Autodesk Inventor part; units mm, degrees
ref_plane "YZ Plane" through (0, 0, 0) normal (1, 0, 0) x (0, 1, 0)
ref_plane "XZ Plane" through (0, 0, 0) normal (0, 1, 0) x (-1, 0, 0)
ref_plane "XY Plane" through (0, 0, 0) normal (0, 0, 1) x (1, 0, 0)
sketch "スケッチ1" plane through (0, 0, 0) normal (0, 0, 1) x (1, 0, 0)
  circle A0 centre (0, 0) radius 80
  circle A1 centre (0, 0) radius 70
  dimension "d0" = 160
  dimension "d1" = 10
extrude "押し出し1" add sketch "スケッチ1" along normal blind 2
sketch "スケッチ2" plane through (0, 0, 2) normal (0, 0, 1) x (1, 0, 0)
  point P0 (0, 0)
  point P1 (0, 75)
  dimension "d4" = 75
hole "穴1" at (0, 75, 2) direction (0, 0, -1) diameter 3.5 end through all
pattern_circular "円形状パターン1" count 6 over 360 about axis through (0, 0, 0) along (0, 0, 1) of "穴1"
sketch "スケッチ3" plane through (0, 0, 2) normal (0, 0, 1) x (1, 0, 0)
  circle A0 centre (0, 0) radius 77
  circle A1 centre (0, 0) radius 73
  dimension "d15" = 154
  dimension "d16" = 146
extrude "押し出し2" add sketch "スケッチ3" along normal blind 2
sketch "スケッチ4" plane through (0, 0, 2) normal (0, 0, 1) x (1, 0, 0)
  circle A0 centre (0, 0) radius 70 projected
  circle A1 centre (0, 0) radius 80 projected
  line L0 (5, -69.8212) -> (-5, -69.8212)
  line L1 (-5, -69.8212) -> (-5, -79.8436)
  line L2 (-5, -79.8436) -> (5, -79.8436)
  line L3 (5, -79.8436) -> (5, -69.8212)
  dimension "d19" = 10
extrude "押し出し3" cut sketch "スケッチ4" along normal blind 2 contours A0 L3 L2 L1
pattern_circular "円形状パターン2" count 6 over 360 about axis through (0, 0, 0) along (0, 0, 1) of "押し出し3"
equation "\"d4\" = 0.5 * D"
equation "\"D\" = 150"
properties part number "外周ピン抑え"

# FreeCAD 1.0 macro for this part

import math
import FreeCAD as App
import Part
import Sketcher
from FreeCAD import Vector
Q = App.Units.Quantity

doc = App.newDocument("Part")
body = doc.addObject("PartDesign::Body", "Body")

# Sketch on XY plane
sketch1 = body.newObject("Sketcher::SketchObject", "Sketch")
sketch1.AttachmentSupport = (doc.getObject("XY_Plane"), [""])
sketch1.MapMode = "FlatFace"
sketch1.addGeometry(Part.Circle(Vector(0, 0, 0), Vector(0, 0, 1), 80), False)
sketch1.addGeometry(Part.Circle(Vector(0, 0, 0), Vector(0, 0, 1), 70), False)
sketch1.addConstraint(Sketcher.Constraint("Coincident", 0, 3, -1, 1))
sketch1.addConstraint(Sketcher.Constraint("Coincident", 1, 3, -1, 1))
sketch1.addConstraint(Sketcher.Constraint("Diameter", 0, Q("160 mm")))
sketch1.addConstraint(Sketcher.Constraint("Diameter", 1, Q("140 mm")))
pad1 = body.newObject("PartDesign::Pad", "Pad")
pad1.Profile = sketch1
pad1.Length = 2

# Sketch on XY plane
sketch2 = body.newObject("Sketcher::SketchObject", "Sketch001")
sketch2.AttachmentSupport = (doc.getObject("XY_Plane"), [""])
sketch2.MapMode = "FlatFace"
sketch2.AttachmentOffset = App.Placement(Vector(0, 0, 2), App.Rotation())
sketch2.addGeometry(Part.Circle(Vector(0, 75, 0), Vector(0, 0, 1), 1.8), False)
sketch2.addConstraint(Sketcher.Constraint("PointOnObject", 0, 3, -2))
sketch2.addConstraint(Sketcher.Constraint("Diameter", 0, Q("3.5 mm")))
sketch2.addConstraint(Sketcher.Constraint("DistanceY", -1, 1, 0, 3, Q("75 mm")))
doc.recompute()
hole = body.newObject("PartDesign::Hole", "Hole")
hole.Profile = sketch2
hole.ThreadType = "None"
hole.Diameter = 3.5
hole.DepthType = "ThroughAll"
doc.recompute()

polarpattern = body.newObject("PartDesign::PolarPattern", "PolarPattern")
polarpattern.Originals = [hole]
polarpattern.Axis = (doc.getObject("Z_Axis"), [""])
polarpattern.Angle = 360
polarpattern.Occurrences = 6
body.Tip = polarpattern

# Sketch on XY plane
sketch3 = body.newObject("Sketcher::SketchObject", "Sketch002")
sketch3.AttachmentSupport = (doc.getObject("XY_Plane"), [""])
sketch3.MapMode = "FlatFace"
sketch3.AttachmentOffset = App.Placement(Vector(0, 0, 2), App.Rotation())
sketch3.addGeometry(Part.Circle(Vector(0, 0, 0), Vector(0, 0, 1), 77), False)
sketch3.addGeometry(Part.Circle(Vector(0, 0, 0), Vector(0, 0, 1), 73), False)
sketch3.addConstraint(Sketcher.Constraint("Coincident", 0, 3, -1, 1))
sketch3.addConstraint(Sketcher.Constraint("Coincident", 1, 3, -1, 1))
sketch3.addConstraint(Sketcher.Constraint("Diameter", 0, Q("154 mm")))
sketch3.addConstraint(Sketcher.Constraint("Diameter", 1, Q("146 mm")))
pad2 = body.newObject("PartDesign::Pad", "Pad001")
pad2.Profile = sketch3
pad2.Length = 2

# Sketch on XY plane
sketch4 = body.newObject("Sketcher::SketchObject", "Sketch003")
sketch4.AttachmentSupport = (doc.getObject("XY_Plane"), [""])
sketch4.MapMode = "FlatFace"
sketch4.AttachmentOffset = App.Placement(Vector(0, 0, 2), App.Rotation())
sketch4.addGeometry(Part.ArcOfCircle(Part.Circle(Vector(0, 0, 0), Vector(0, 0, 1), 70), math.radians(-94.1), math.radians(-85.9)), False)
sketch4.addGeometry(Part.LineSegment(Vector(-5, -70, 0), Vector(-5, -80, 0)), False)
sketch4.addGeometry(Part.LineSegment(Vector(-5, -80, 0), Vector(5, -80, 0)), False)
sketch4.addGeometry(Part.LineSegment(Vector(5, -80, 0), Vector(5, -70, 0)), False)
sketch4.addConstraint(Sketcher.Constraint("Coincident", 0, 1, 1, 1))
sketch4.addConstraint(Sketcher.Constraint("Coincident", 1, 2, 2, 1))
sketch4.addConstraint(Sketcher.Constraint("Coincident", 2, 2, 3, 1))
sketch4.addConstraint(Sketcher.Constraint("Coincident", 3, 2, 0, 2))
sketch4.addConstraint(Sketcher.Constraint("Vertical", 1))
sketch4.addConstraint(Sketcher.Constraint("Horizontal", 2))
sketch4.addConstraint(Sketcher.Constraint("Vertical", 3))
sketch4.addConstraint(Sketcher.Constraint("Coincident", 0, 3, -1, 1))
sketch4.addConstraint(Sketcher.Constraint("Horizontal", 0, 1, 3, 2))
sketch4.addConstraint(Sketcher.Constraint("DistanceX", 2, 1, 2, 2, Q("10 mm")))
sketch4.addConstraint(Sketcher.Constraint("Radius", 0, Q("70 mm")))
sketch4.addConstraint(Sketcher.Constraint("DistanceY", 1, 2, 1, 1, Q("10.0224 mm")))
pocket1 = body.newObject("PartDesign::Pocket", "Pocket")
pocket1.Profile = sketch4
pocket1.Length = 2
pocket1.Reversed = True
doc.recompute()

polarpattern2 = body.newObject("PartDesign::PolarPattern", "PolarPattern001")
polarpattern2.Originals = [pocket1]
polarpattern2.Axis = (doc.getObject("Z_Axis"), [""])
polarpattern2.Angle = 360
polarpattern2.Occurrences = 6
body.Tip = polarpattern2

doc.recompute()
